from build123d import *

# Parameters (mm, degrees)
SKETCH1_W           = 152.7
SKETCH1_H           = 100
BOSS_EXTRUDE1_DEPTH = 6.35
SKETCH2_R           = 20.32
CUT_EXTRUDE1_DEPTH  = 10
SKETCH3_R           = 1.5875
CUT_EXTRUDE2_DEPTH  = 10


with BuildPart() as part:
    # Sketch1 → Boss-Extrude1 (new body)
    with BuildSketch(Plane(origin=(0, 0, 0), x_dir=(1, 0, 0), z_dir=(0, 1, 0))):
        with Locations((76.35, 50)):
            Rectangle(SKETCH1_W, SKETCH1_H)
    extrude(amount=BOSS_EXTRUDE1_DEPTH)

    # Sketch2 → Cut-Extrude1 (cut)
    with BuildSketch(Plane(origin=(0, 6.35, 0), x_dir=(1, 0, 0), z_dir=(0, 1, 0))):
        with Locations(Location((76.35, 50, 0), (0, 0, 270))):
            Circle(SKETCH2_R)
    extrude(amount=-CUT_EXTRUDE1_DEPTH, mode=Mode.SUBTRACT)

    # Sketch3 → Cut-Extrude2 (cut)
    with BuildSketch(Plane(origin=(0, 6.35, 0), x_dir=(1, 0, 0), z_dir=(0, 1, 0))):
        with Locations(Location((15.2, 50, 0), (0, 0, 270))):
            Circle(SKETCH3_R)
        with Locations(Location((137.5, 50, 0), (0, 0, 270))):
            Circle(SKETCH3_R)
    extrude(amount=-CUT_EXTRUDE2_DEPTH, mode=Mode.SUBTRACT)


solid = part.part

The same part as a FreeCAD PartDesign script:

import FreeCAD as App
import Part
import Sketcher


def add_polygon(sketch, points):
    """Adds a closed chain of lines whose ends are joined by coincident constraints."""
    first, n = sketch.GeometryCount, len(points)
    for a, b in zip(points, points[1:] + points[:1]):
        sketch.addGeometry(Part.LineSegment(App.Vector(*a, 0), App.Vector(*b, 0)), False)
    for i in range(n):
        sketch.addConstraint(Sketcher.Constraint("Coincident", first + i, 2, first + (i + 1) % n, 1))

doc = App.newDocument("Part")
params = doc.addObject("Spreadsheet::Sheet", "Params")
for row, (alias, value) in enumerate([
    ("sketch1_height", "100 mm"),
    ("sketch1_width", "152.7 mm"),
    ("pad1_length", "6.35 mm"),
    ("sketch2_diameter", "40.64 mm"),
    ("pocket1_length", "10 mm"),
    ("pocket2_length", "10 mm"),
], start=1):
    params.set(f"A{row}", alias)
    params.set(f"B{row}", "=" + value)
    params.setAlias(f"B{row}", alias)

body = doc.addObject("PartDesign::Body", "Body")

# Sketch on XZ plane
sketch1 = doc.addObject("Sketcher::SketchObject", "Sketch")
body.addObject(sketch1)
sketch1.AttachmentSupport = (doc.XZ_Plane, [""])
sketch1.MapMode = "FlatFace"
add_polygon(sketch1, [(0, -100), (0, 0), (153, 0), (153, -100)])  # lines 0-3
sketch1.addConstraint(Sketcher.Constraint("Vertical", 0))
sketch1.addConstraint(Sketcher.Constraint("Horizontal", 1))
sketch1.addConstraint(Sketcher.Constraint("Vertical", 2))
sketch1.addConstraint(Sketcher.Constraint("Horizontal", 3))
sketch1.addConstraint(Sketcher.Constraint("Coincident", 0, 2, -1, 1))
sketch1.addConstraint(Sketcher.Constraint("DistanceY", 0, 1, 0, 2, 100.0))
sketch1.addConstraint(Sketcher.Constraint("DistanceX", 1, 1, 1, 2, 152.7))
sketch1.setExpression("Constraints[9]", "Params.sketch1_height")
sketch1.setExpression("Constraints[10]", "Params.sketch1_width")
pad1 = doc.addObject("PartDesign::Pad", "Pad")
body.addObject(pad1)
pad1.Profile = sketch1
pad1.setExpression("Length", "Params.pad1_length")
pad1.Reversed = True

# Sketch on XZ plane
sketch2 = doc.addObject("Sketcher::SketchObject", "Sketch001")
body.addObject(sketch2)
sketch2.AttachmentSupport = (doc.XZ_Plane, [""])
sketch2.MapMode = "FlatFace"
sketch2.AttachmentOffset = App.Placement(App.Vector(0, 0, -6.35), App.Rotation())
sketch2.addGeometry(Part.Circle(App.Vector(76, -50, 0), App.Vector(0, 0, 1), 20), False)
sketch2.addConstraint(Sketcher.Constraint("Diameter", 0, 40.64))
sketch2.addConstraint(Sketcher.Constraint("DistanceY", 0, 3, -1, 1, 50.0))
sketch2.addConstraint(Sketcher.Constraint("DistanceX", -1, 1, 0, 3, 76.35))
sketch2.setExpression("Constraints[0]", "Params.sketch2_diameter")
pocket1 = doc.addObject("PartDesign::Pocket", "Pocket")
body.addObject(pocket1)
pocket1.Profile = sketch2
pocket1.setExpression("Length", "Params.pocket1_length")
pocket1.Reversed = True

# Sketch on XZ plane
sketch3 = doc.addObject("Sketcher::SketchObject", "Sketch002")
body.addObject(sketch3)
sketch3.AttachmentSupport = (doc.XZ_Plane, [""])
sketch3.MapMode = "FlatFace"
sketch3.AttachmentOffset = App.Placement(App.Vector(0, 0, -6.35), App.Rotation())
sketch3.addGeometry(Part.Circle(App.Vector(15.2, -50, 0), App.Vector(0, 0, 1), 1.6), False)
sketch3.addGeometry(Part.Circle(App.Vector(137.5, -50, 0), App.Vector(0, 0, 1), 1.6), False)
sketch3.addConstraint(Sketcher.Constraint("Equal", 0, 1))
sketch3.addConstraint(Sketcher.Constraint("Horizontal", 0, 3, 1, 3))
sketch3.addConstraint(Sketcher.Constraint("Diameter", 0, 3.175))
sketch3.addConstraint(Sketcher.Constraint("DistanceY", 0, 3, -1, 1, 50.0))
sketch3.addConstraint(Sketcher.Constraint("DistanceX", -1, 1, 0, 3, 15.2))
sketch3.addConstraint(Sketcher.Constraint("DistanceX", -1, 1, 1, 3, 137.5))
pocket2 = doc.addObject("PartDesign::Pocket", "Pocket001")
body.addObject(pocket2)
pocket2.Profile = sketch3
pocket2.setExpression("Length", "Params.pocket2_length")
pocket2.Reversed = True

doc.recompute()
